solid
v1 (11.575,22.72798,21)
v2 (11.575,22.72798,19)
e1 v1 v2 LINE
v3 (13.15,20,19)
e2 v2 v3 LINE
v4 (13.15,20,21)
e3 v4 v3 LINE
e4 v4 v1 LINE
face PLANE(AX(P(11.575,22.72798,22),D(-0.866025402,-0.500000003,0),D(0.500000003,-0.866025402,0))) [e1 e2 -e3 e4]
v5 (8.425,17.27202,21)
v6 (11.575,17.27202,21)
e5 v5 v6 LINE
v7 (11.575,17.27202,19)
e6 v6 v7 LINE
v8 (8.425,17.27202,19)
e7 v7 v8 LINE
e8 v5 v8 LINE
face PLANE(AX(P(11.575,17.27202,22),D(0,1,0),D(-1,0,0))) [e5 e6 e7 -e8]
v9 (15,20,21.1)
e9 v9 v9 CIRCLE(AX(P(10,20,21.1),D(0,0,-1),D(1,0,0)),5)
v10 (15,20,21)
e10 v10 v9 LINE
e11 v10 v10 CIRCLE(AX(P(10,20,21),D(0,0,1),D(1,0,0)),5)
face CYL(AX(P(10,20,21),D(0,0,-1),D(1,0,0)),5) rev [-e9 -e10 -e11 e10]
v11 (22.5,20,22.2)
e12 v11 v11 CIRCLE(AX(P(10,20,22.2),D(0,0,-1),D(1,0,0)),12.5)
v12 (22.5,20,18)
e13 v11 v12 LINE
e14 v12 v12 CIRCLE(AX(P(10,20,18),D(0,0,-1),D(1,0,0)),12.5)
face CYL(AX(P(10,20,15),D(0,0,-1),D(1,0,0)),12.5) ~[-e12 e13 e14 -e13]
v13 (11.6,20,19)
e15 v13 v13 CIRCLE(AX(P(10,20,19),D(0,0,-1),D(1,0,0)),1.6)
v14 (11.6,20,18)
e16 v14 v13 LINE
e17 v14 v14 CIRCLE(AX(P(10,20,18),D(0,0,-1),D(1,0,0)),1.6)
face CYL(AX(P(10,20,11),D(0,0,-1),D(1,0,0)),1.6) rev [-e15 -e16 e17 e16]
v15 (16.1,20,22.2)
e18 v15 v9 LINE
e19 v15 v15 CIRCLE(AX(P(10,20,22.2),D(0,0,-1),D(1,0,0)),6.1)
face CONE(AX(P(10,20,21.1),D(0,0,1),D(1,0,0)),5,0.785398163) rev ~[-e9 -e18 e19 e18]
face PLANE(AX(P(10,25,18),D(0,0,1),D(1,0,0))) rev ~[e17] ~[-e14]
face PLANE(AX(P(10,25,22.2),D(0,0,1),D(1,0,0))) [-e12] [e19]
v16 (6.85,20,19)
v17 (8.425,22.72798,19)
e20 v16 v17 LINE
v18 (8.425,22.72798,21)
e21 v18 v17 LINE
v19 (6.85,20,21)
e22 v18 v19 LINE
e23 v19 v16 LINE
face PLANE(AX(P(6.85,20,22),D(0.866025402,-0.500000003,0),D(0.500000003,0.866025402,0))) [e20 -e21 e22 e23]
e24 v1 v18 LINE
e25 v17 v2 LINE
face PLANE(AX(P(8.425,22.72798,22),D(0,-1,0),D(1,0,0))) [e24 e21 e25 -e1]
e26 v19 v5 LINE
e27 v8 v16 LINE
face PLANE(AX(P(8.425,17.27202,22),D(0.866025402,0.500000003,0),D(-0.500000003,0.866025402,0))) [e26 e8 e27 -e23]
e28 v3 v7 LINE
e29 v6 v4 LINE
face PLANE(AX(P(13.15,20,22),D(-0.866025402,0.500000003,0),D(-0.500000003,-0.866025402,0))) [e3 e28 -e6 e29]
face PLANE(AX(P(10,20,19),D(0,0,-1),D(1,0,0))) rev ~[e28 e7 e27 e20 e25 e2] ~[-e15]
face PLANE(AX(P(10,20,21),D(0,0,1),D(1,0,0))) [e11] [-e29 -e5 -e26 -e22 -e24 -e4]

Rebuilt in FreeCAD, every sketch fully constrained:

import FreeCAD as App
import Part
import Sketcher

V = App.Vector
Q = App.Units.Quantity


def edges_at(feature, points):
    """Names of the edges that pass closest to the given points."""
    edges = feature.Shape.Edges
    near = lambda p: min(range(len(edges)), key=lambda i: edges[i].distToShape(Part.Vertex(*p))[0])
    return sorted({f"Edge{near(p) + 1}" for p in points})

doc = App.newDocument("Part")
params = doc.addObject("Spreadsheet::Sheet", "Params")
for row, (alias, value) in enumerate([
    ("sketch1_width", "40 mm"),
    ("sketch1_height", "50 mm"),
    ("pad1_length", "1.4 mm"),
    ("sketch2_diameter", "10 mm"),
    ("pad2_length", "22.75 mm"),
    ("sketch3_diameter", "3.2 mm"),
    ("pad3_length", "22.75 mm"),
    ("sketch4_width", "40 mm"),
    ("sketch4_height", "50 mm"),
    ("pad4_length", "10 mm"),
    ("sketch5_width", "40 mm"),
    ("sketch5_height", "50 mm"),
    ("pad5_length", "2.3 mm"),
    ("sketch6_diameter", "25 mm"),
    ("pad6_length", "7 mm"),
    ("sketch7_width", "40 mm"),
    ("sketch7_height", "50 mm"),
    ("pad7_length", "0.7 mm"),
    ("sketch8_diameter", "8 mm"),
    ("pad8_length", "2.75 mm"),
    ("sketch9_diameter", "3.2 mm"),
    ("pad9_length", "22.75 mm"),
    ("sketch10_diameter", "8 mm"),
    ("pad10_length", "2.75 mm"),
    ("sketch11_width", "3.15 mm"),
    ("pad11_length", "3 mm"),
    ("sketch12_diameter", "25 mm"),
    ("pad12_length", "7 mm"),
    ("chamfer_size", "2.4 mm"),
], start=1):
    params.set(f"A{row}", alias)
    params.set(f"B{row}", "=" + value)
    params.setAlias(f"B{row}", alias)

body = doc.addObject("PartDesign::Body", "Body")

# Sketch on XY plane
sketch1 = body.newObject("Sketcher::SketchObject", "Sketch")
sketch1.AttachmentSupport = (doc.getObject("XY_Plane"), [""])
sketch1.MapMode = "FlatFace"
sketch1.AttachmentOffset = App.Placement(V(0, 0, 22.2), App.Rotation())
sketch1.addGeometry([
    Part.LineSegment(V(-10, 50, 0), V(-10, 0, 0)),
    Part.LineSegment(V(-10, 0, 0), V(30, 0, 0)),
    Part.LineSegment(V(30, 0, 0), V(30, 50, 0)),
    Part.LineSegment(V(30, 50, 0), V(-10, 50, 0)),
], False)
sketch1.addConstraint([
    Sketcher.Constraint("Coincident", 0, 2, 1, 1),
    Sketcher.Constraint("Coincident", 1, 2, 2, 1),
    Sketcher.Constraint("Coincident", 2, 2, 3, 1),
    Sketcher.Constraint("Coincident", 3, 2, 0, 1),
    Sketcher.Constraint("Vertical", 0),
    Sketcher.Constraint("Horizontal", 1),
    Sketcher.Constraint("Vertical", 2),
    Sketcher.Constraint("Horizontal", 3),
    Sketcher.Constraint("PointOnObject", 0, 2, -1),
    Sketcher.Constraint("DistanceX", 1, 1, 1, 2, Q("40 mm")),
    Sketcher.Constraint("DistanceY", 0, 2, 0, 1, Q("50 mm")),
    Sketcher.Constraint("DistanceX", 0, 2, -1, 1, Q("10 mm")),
])
sketch1.setExpression("Constraints[9]", "Params.sketch1_width")
sketch1.setExpression("Constraints[10]", "Params.sketch1_height")
pad1 = body.newObject("PartDesign::Pad", "Pad")
pad1.Profile = sketch1
pad1.setExpression("Length", "Params.pad1_length")
body2 = doc.addObject("PartDesign::Body", "Body001")

# Sketch on XY plane
sketch2 = body2.newObject("Sketcher::SketchObject", "Sketch001")
sketch2.AttachmentSupport = (doc.getObject("XY_Plane001"), [""])
sketch2.MapMode = "FlatFace"
sketch2.AttachmentOffset = App.Placement(V(0, 0, 21), App.Rotation())
sketch2.addGeometry(Part.Circle(V(10, 20, 0), V(0, 0, 1), 5), False)
sketch2.addConstraint([
    Sketcher.Constraint("Diameter", 0, Q("10 mm")),
    Sketcher.Constraint("DistanceX", -1, 1, 0, 3, Q("10 mm")),
    Sketcher.Constraint("DistanceY", -1, 1, 0, 3, Q("20 mm")),
])
sketch2.setExpression("Constraints[0]", "Params.sketch2_diameter")
pad2 = body2.newObject("PartDesign::Pad", "Pad001")
pad2.Profile = sketch2
pad2.setExpression("Length", "Params.pad2_length")
body3 = doc.addObject("PartDesign::Body", "Body002")

# Sketch on XY plane
sketch3 = body3.newObject("Sketcher::SketchObject", "Sketch002")
sketch3.AttachmentSupport = (doc.getObject("XY_Plane002"), [""])
sketch3.MapMode = "FlatFace"
sketch3.AttachmentOffset = App.Placement(V(0, 0, 12), App.Rotation())
sketch3.addGeometry(Part.Circle(V(10, 20, 0), V(0, 0, 1), 1.6), False)
sketch3.addConstraint([
    Sketcher.Constraint("Diameter", 0, Q("3.2 mm")),
    Sketcher.Constraint("DistanceX", -1, 1, 0, 3, Q("10 mm")),
    Sketcher.Constraint("DistanceY", -1, 1, 0, 3, Q("20 mm")),
])
sketch3.setExpression("Constraints[0]", "Params.sketch3_diameter")
pad3 = body3.newObject("PartDesign::Pad", "Pad002")
pad3.Profile = sketch3
pad3.setExpression("Length", "Params.pad3_length")
body4 = doc.addObject("PartDesign::Body", "Body003")

# Sketch on XY plane
sketch4 = body4.newObject("Sketcher::SketchObject", "Sketch003")
sketch4.AttachmentSupport = (doc.getObject("XY_Plane003"), [""])
sketch4.MapMode = "FlatFace"
sketch4.AttachmentOffset = App.Placement(V(0, 0, 23.5), App.Rotation())
sketch4.addGeometry([
    Part.LineSegment(V(-10, 50, 0), V(-10, 0, 0)),
    Part.LineSegment(V(-10, 0, 0), V(30, 0, 0)),
    Part.LineSegment(V(30, 0, 0), V(30, 50, 0)),
    Part.LineSegment(V(30, 50, 0), V(-10, 50, 0)),
], False)
sketch4.addConstraint([
    Sketcher.Constraint("Coincident", 0, 2, 1, 1),
    Sketcher.Constraint("Coincident", 1, 2, 2, 1),
    Sketcher.Constraint("Coincident", 2, 2, 3, 1),
    Sketcher.Constraint("Coincident", 3, 2, 0, 1),
    Sketcher.Constraint("Vertical", 0),
    Sketcher.Constraint("Horizontal", 1),
    Sketcher.Constraint("Vertical", 2),
    Sketcher.Constraint("Horizontal", 3),
    Sketcher.Constraint("PointOnObject", 0, 2, -1),
    Sketcher.Constraint("DistanceX", 1, 1, 1, 2, Q("40 mm")),
    Sketcher.Constraint("DistanceY", 0, 2, 0, 1, Q("50 mm")),
    Sketcher.Constraint("DistanceX", 0, 2, -1, 1, Q("10 mm")),
])
sketch4.setExpression("Constraints[9]", "Params.sketch4_width")
sketch4.setExpression("Constraints[10]", "Params.sketch4_height")
pad4 = body4.newObject("PartDesign::Pad", "Pad003")
pad4.Profile = sketch4
pad4.setExpression("Length", "Params.pad4_length")
body5 = doc.addObject("PartDesign::Body", "Body004")

# Sketch on XY plane
sketch5 = body5.newObject("Sketcher::SketchObject", "Sketch004")
sketch5.AttachmentSupport = (doc.getObject("XY_Plane004"), [""])
sketch5.MapMode = "FlatFace"
sketch5.AttachmentOffset = App.Placement(V(0, 0, 15.7), App.Rotation())
sketch5.addGeometry([
    Part.LineSegment(V(-10, 50, 0), V(-10, 0, 0)),
    Part.LineSegment(V(-10, 0, 0), V(30, 0, 0)),
    Part.LineSegment(V(30, 0, 0), V(30, 50, 0)),
    Part.LineSegment(V(30, 50, 0), V(-10, 50, 0)),
], False)
sketch5.addConstraint([
    Sketcher.Constraint("Coincident", 0, 2, 1, 1),
    Sketcher.Constraint("Coincident", 1, 2, 2, 1),
    Sketcher.Constraint("Coincident", 2, 2, 3, 1),
    Sketcher.Constraint("Coincident", 3, 2, 0, 1),
    Sketcher.Constraint("Vertical", 0),
    Sketcher.Constraint("Horizontal", 1),
    Sketcher.Constraint("Vertical", 2),
    Sketcher.Constraint("Horizontal", 3),
    Sketcher.Constraint("PointOnObject", 0, 2, -1),
    Sketcher.Constraint("DistanceX", 1, 1, 1, 2, Q("40 mm")),
    Sketcher.Constraint("DistanceY", 0, 2, 0, 1, Q("50 mm")),
    Sketcher.Constraint("DistanceX", 0, 2, -1, 1, Q("10 mm")),
])
sketch5.setExpression("Constraints[9]", "Params.sketch5_width")
sketch5.setExpression("Constraints[10]", "Params.sketch5_height")
pad5 = body5.newObject("PartDesign::Pad", "Pad004")
pad5.Profile = sketch5
pad5.setExpression("Length", "Params.pad5_length")
body6 = doc.addObject("PartDesign::Body", "Body005")

# Sketch on XY plane
sketch6 = body6.newObject("Sketcher::SketchObject", "Sketch005")
sketch6.AttachmentSupport = (doc.getObject("XY_Plane005"), [""])
sketch6.MapMode = "FlatFace"
sketch6.AttachmentOffset = App.Placement(V(0, 0, 21.5), App.Rotation())
sketch6.addGeometry(Part.Circle(V(10, 20, 0), V(0, 0, 1), 12), False)
sketch6.addConstraint([
    Sketcher.Constraint("Diameter", 0, Q("25 mm")),
    Sketcher.Constraint("DistanceX", -1, 1, 0, 3, Q("10 mm")),
    Sketcher.Constraint("DistanceY", -1, 1, 0, 3, Q("20 mm")),
])
sketch6.setExpression("Constraints[0]", "Params.sketch6_diameter")
pad6 = body6.newObject("PartDesign::Pad", "Pad005")
pad6.Profile = sketch6
pad6.setExpression("Length", "Params.pad6_length")
body7 = doc.addObject("PartDesign::Body", "Body006")

# Sketch on XY plane
sketch7 = body7.newObject("Sketcher::SketchObject", "Sketch006")
sketch7.AttachmentSupport = (doc.getObject("XY_Plane006"), [""])
sketch7.MapMode = "FlatFace"
sketch7.AttachmentOffset = App.Placement(V(0, 0, 15), App.Rotation())
sketch7.addGeometry([
    Part.LineSegment(V(-10, 50, 0), V(-10, 0, 0)),
    Part.LineSegment(V(-10, 0, 0), V(30, 0, 0)),
    Part.LineSegment(V(30, 0, 0), V(30, 50, 0)),
    Part.LineSegment(V(30, 50, 0), V(-10, 50, 0)),
], False)
sketch7.addConstraint([
    Sketcher.Constraint("Coincident", 0, 2, 1, 1),
    Sketcher.Constraint("Coincident", 1, 2, 2, 1),
    Sketcher.Constraint("Coincident", 2, 2, 3, 1),
    Sketcher.Constraint("Coincident", 3, 2, 0, 1),
    Sketcher.Constraint("Vertical", 0),
    Sketcher.Constraint("Horizontal", 1),
    Sketcher.Constraint("Vertical", 2),
    Sketcher.Constraint("Horizontal", 3),
    Sketcher.Constraint("PointOnObject", 0, 2, -1),
    Sketcher.Constraint("DistanceX", 1, 1, 1, 2, Q("40 mm")),
    Sketcher.Constraint("DistanceY", 0, 2, 0, 1, Q("50 mm")),
    Sketcher.Constraint("DistanceX", 0, 2, -1, 1, Q("10 mm")),
])
sketch7.setExpression("Constraints[9]", "Params.sketch7_width")
sketch7.setExpression("Constraints[10]", "Params.sketch7_height")
pad7 = body7.newObject("PartDesign::Pad", "Pad006")
pad7.Profile = sketch7
pad7.setExpression("Length", "Params.pad7_length")
body8 = doc.addObject("PartDesign::Body", "Body007")

# Sketch on XY plane
sketch8 = body8.newObject("Sketcher::SketchObject", "Sketch007")
sketch8.AttachmentSupport = (doc.getObject("XY_Plane007"), [""])
sketch8.MapMode = "FlatFace"
sketch8.AttachmentOffset = App.Placement(V(0, 0, 15.2), App.Rotation())
sketch8.addGeometry(Part.Circle(V(10, 20, 0), V(0, 0, 1), 4), False)
sketch8.addConstraint([
    Sketcher.Constraint("Diameter", 0, Q("8 mm")),
    Sketcher.Constraint("DistanceX", -1, 1, 0, 3, Q("10 mm")),
    Sketcher.Constraint("DistanceY", -1, 1, 0, 3, Q("20 mm")),
])
sketch8.setExpression("Constraints[0]", "Params.sketch8_diameter")
pad8 = body8.newObject("PartDesign::Pad", "Pad007")
pad8.Profile = sketch8
pad8.setExpression("Length", "Params.pad8_length")
body9 = doc.addObject("PartDesign::Body", "Body008")

# Sketch on XY plane
sketch9 = body9.newObject("Sketcher::SketchObject", "Sketch008")
sketch9.AttachmentSupport = (doc.getObject("XY_Plane008"), [""])
sketch9.MapMode = "FlatFace"
sketch9.AttachmentOffset = App.Placement(V(0, 0, -31), App.Rotation())
sketch9.addGeometry(Part.Circle(V(10, 0, 0), V(0, 0, 1), 1.6), False)
sketch9.addConstraint([
    Sketcher.Constraint("PointOnObject", 0, 3, -1),
    Sketcher.Constraint("Diameter", 0, Q("3.2 mm")),
    Sketcher.Constraint("DistanceX", -1, 1, 0, 3, Q("10 mm")),
])
sketch9.setExpression("Constraints[1]", "Params.sketch9_diameter")
pad9 = body9.newObject("PartDesign::Pad", "Pad008")
pad9.Profile = sketch9
pad9.setExpression("Length", "Params.pad9_length")
body10 = doc.addObject("PartDesign::Body", "Body009")

# Sketch on XY plane
sketch10 = body10.newObject("Sketcher::SketchObject", "Sketch009")
sketch10.AttachmentSupport = (doc.getObject("XY_Plane009"), [""])
sketch10.MapMode = "FlatFace"
sketch10.AttachmentOffset = App.Placement(V(0, 0, -27), App.Rotation())
sketch10.addGeometry(Part.Circle(V(10, 0, 0), V(0, 0, 1), 4), False)
sketch10.addConstraint([
    Sketcher.Constraint("PointOnObject", 0, 3, -1),
    Sketcher.Constraint("Diameter", 0, Q("8 mm")),
    Sketcher.Constraint("DistanceX", -1, 1, 0, 3, Q("10 mm")),
])
sketch10.setExpression("Constraints[1]", "Params.sketch10_diameter")
pad10 = body10.newObject("PartDesign::Pad", "Pad009")
pad10.Profile = sketch10
pad10.setExpression("Length", "Params.pad10_length")
body11 = doc.addObject("PartDesign::Body", "Body010")

# Sketch on XY plane
sketch11 = body11.newObject("Sketcher::SketchObject", "Sketch010")
sketch11.AttachmentSupport = (doc.getObject("XY_Plane010"), [""])
sketch11.MapMode = "FlatFace"
sketch11.AttachmentOffset = App.Placement(V(0, 0, -20), App.Rotation())
sketch11.addGeometry([
    Part.LineSegment(V(13.2, 0, 0), V(11.6, -2.7, 0)),  # 0
    Part.LineSegment(V(11.6, -2.7, 0), V(8.4, -2.7, 0)),  # 1
    Part.LineSegment(V(8.4, -2.7, 0), V(6.8, 0, 0)),  # 2
    Part.LineSegment(V(6.8, 0, 0), V(8.4, 2.7, 0)),  # 3
    Part.LineSegment(V(8.4, 2.7, 0), V(11.6, 2.7, 0)),  # 4
    Part.LineSegment(V(11.6, 2.7, 0), V(13.2, 0, 0)),  # 5
], False)
sketch11.addConstraint([
    Sketcher.Constraint("Coincident", 0, 2, 1, 1),
    Sketcher.Constraint("Coincident", 1, 2, 2, 1),
    Sketcher.Constraint("Coincident", 2, 2, 3, 1),
    Sketcher.Constraint("Coincident", 3, 2, 4, 1),
    Sketcher.Constraint("Coincident", 4, 2, 5, 1),
    Sketcher.Constraint("Coincident", 5, 2, 0, 1),
    Sketcher.Constraint("Horizontal", 1),
    Sketcher.Constraint("Horizontal", 4),
    Sketcher.Constraint("Symmetric", 1, 2, 3, 2, -1),
    Sketcher.Constraint("PointOnObject", 2, 2, -1),
    Sketcher.Constraint("PointOnObject", 5, 2, -1),
    Sketcher.Constraint("Parallel", 0, 3),
    Sketcher.Constraint("Parallel", 2, 5),
    Sketcher.Constraint("Angle", 0, Q("-120 deg")),
    Sketcher.Constraint("DistanceX", 1, 2, 1, 1, Q("3.15 mm")),
    Sketcher.Constraint("DistanceX", 2, 2, 5, 2, Q("6.3 mm")),
    Sketcher.Constraint("DistanceX", -1, 1, 2, 2, Q("6.85 mm")),
])
sketch11.setExpression("Constraints[14]", "Params.sketch11_width")
pad11 = body11.newObject("PartDesign::Pad", "Pad010")
pad11.Profile = sketch11
pad11.setExpression("Length", "Params.pad11_length")
pad11.Reversed = True
body12 = doc.addObject("PartDesign::Body", "Body011")

# Sketch on XY plane
sketch12 = body12.newObject("Sketcher::SketchObject", "Sketch011")
sketch12.AttachmentSupport = (doc.getObject("XY_Plane011"), [""])
sketch12.MapMode = "FlatFace"
sketch12.AttachmentOffset = App.Placement(V(0, 0, -27), App.Rotation())
sketch12.addGeometry(Part.Circle(V(10, 0, 0), V(0, 0, 1), 12), False)
sketch12.addConstraint([
    Sketcher.Constraint("PointOnObject", 0, 3, -1),
    Sketcher.Constraint("Diameter", 0, Q("25 mm")),
    Sketcher.Constraint("DistanceX", -1, 1, 0, 3, Q("10 mm")),
])
sketch12.setExpression("Constraints[1]", "Params.sketch12_diameter")
pad12 = body12.newObject("PartDesign::Pad", "Pad011")
pad12.Profile = sketch12
pad12.setExpression("Length", "Params.pad12_length")
doc.recompute()

boolean = body12.newObject("PartDesign::Boolean", "Boolean")
boolean.Type = "Cut"
boolean.addObjects([body11])
doc.recompute()

boolean2 = body12.newObject("PartDesign::Boolean", "Boolean001")
boolean2.Type = "Cut"
boolean2.addObjects([body10])
doc.recompute()

boolean3 = body12.newObject("PartDesign::Boolean", "Boolean002")
boolean3.Type = "Cut"
boolean3.addObjects([body9])
body13 = doc.addObject("PartDesign::Body", "Body012")
doc.recompute()

body12.Placement = App.Placement(V(0, 20, 42), App.Rotation(V(0, 0, 1), 0))
boolean4 = body13.newObject("PartDesign::Boolean", "Boolean003")
boolean4.Type = "Fuse"
boolean4.addObjects([body12])
doc.recompute()

boolean5 = body13.newObject("PartDesign::Boolean", "Boolean004")
boolean5.Type = "Cut"
boolean5.addObjects([body8])
doc.recompute()

boolean6 = body13.newObject("PartDesign::Boolean", "Boolean005")
boolean6.Type = "Cut"
boolean6.addObjects([body7])
doc.recompute()

boolean7 = body13.newObject("PartDesign::Boolean", "Boolean006")
boolean7.Type = "Fuse"
boolean7.addObjects([body6])
doc.recompute()

boolean8 = body13.newObject("PartDesign::Boolean", "Boolean007")
boolean8.Type = "Cut"
boolean8.addObjects([body5])
doc.recompute()

boolean9 = body13.newObject("PartDesign::Boolean", "Boolean008")
boolean9.Type = "Cut"
boolean9.addObjects([body4])
doc.recompute()

boolean10 = body13.newObject("PartDesign::Boolean", "Boolean009")
boolean10.Type = "Cut"
boolean10.addObjects([body3])
doc.recompute()

boolean11 = body13.newObject("PartDesign::Boolean", "Boolean010")
boolean11.Type = "Cut"
boolean11.addObjects([body2])
doc.recompute()

chamfer = body13.newObject("PartDesign::Chamfer", "Chamfer")
chamfer.Base = (boolean11, edges_at(boolean11, [(5, 20, 23.5)]))
chamfer.setExpression("Size", "Params.chamfer_size")
doc.recompute()

boolean12 = body13.newObject("PartDesign::Boolean", "Boolean011")
boolean12.Type = "Cut"
boolean12.addObjects([body])

doc.recompute()
